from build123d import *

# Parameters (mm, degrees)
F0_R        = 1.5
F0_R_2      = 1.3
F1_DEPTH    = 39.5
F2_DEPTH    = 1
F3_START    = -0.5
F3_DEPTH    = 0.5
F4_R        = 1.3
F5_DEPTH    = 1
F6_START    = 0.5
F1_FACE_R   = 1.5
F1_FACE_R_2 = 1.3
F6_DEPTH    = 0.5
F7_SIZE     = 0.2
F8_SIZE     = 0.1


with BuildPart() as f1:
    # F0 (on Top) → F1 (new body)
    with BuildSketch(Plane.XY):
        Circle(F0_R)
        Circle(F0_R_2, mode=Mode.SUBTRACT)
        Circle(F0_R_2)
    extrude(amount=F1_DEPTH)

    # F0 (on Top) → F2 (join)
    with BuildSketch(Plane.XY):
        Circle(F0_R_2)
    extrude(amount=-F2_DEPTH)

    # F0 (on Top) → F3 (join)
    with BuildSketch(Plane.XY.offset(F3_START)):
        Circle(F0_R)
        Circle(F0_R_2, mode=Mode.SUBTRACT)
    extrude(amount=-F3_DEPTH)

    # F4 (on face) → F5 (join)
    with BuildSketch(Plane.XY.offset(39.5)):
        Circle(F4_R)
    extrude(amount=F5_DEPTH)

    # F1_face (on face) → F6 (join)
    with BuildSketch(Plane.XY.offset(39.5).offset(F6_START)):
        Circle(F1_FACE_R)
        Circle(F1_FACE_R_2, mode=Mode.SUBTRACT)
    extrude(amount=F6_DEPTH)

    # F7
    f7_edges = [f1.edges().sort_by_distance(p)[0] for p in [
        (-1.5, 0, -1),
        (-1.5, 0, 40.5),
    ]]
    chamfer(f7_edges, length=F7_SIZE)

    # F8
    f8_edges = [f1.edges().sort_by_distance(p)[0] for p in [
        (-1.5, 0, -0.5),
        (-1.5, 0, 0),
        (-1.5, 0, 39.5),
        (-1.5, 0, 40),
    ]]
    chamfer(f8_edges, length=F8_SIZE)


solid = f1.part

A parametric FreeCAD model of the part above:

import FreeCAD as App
import Part
import Sketcher

V = App.Vector


def edges_at(feature, points):
    """Names of the edges that pass closest to the given points."""
    edges = feature.Shape.Edges
    near = lambda p: min(range(len(edges)), key=lambda i: edges[i].distToShape(Part.Vertex(*p))[0])
    return sorted({f"Edge{near(p) + 1}" for p in points})

doc = App.newDocument("Part")
body = doc.addObject("PartDesign::Body", "Body")

# Sketch on XY plane
sketch1 = doc.addObject("Sketcher::SketchObject", "Sketch")
body.addObject(sketch1)
sketch1.AttachmentSupport = (doc.XY_Plane, [""])
sketch1.MapMode = "FlatFace"
sketch1.addGeometry(Part.Circle(V(0, 0, 0), V(0, 0, 1), 1.5), False)
sketch1.addConstraint([
    Sketcher.Constraint("Coincident", 0, 3, -1, 1),
    Sketcher.Constraint("Diameter", 0, 3.0),
])
pad1 = doc.addObject("PartDesign::Pad", "Pad")
body.addObject(pad1)
pad1.Profile = sketch1
pad1.Length = 39.5

# Sketch on XY plane
sketch2 = doc.addObject("Sketcher::SketchObject", "Sketch001")
body.addObject(sketch2)
sketch2.AttachmentSupport = (doc.XY_Plane, [""])
sketch2.MapMode = "FlatFace"
sketch2.addGeometry(Part.Circle(V(0, 0, 0), V(0, 0, 1), 1.3), False)
sketch2.addConstraint([
    Sketcher.Constraint("Coincident", 0, 3, -1, 1),
    Sketcher.Constraint("Diameter", 0, 2.6),
])
pad2 = doc.addObject("PartDesign::Pad", "Pad001")
body.addObject(pad2)
pad2.Profile = sketch2
pad2.Length = 1
pad2.Reversed = True

# Sketch on XY plane
sketch3 = doc.addObject("Sketcher::SketchObject", "Sketch002")
body.addObject(sketch3)
sketch3.AttachmentSupport = (doc.XY_Plane, [""])
sketch3.MapMode = "FlatFace"
sketch3.AttachmentOffset = App.Placement(V(0, 0, -0.5), App.Rotation())
sketch3.addGeometry([
    Part.Circle(V(0, 0, 0), V(0, 0, 1), 1.5),
    Part.Circle(V(0, 0, 0), V(0, 0, 1), 1.3),
], False)
sketch3.addConstraint([
    Sketcher.Constraint("Coincident", 0, 3, -1, 1),
    Sketcher.Constraint("Coincident", 1, 3, -1, 1),
    Sketcher.Constraint("Diameter", 0, 3.0),
    Sketcher.Constraint("Diameter", 1, 2.6),
])
pad3 = doc.addObject("PartDesign::Pad", "Pad002")
body.addObject(pad3)
pad3.Profile = sketch3
pad3.Length = 0.5
pad3.Reversed = True

# Sketch on XY plane
sketch4 = doc.addObject("Sketcher::SketchObject", "Sketch003")
body.addObject(sketch4)
sketch4.AttachmentSupport = (doc.XY_Plane, [""])
sketch4.MapMode = "FlatFace"
sketch4.AttachmentOffset = App.Placement(V(0, 0, 39.5), App.Rotation())
sketch4.addGeometry(Part.Circle(V(0, 0, 0), V(0, 0, 1), 1.3), False)
sketch4.addConstraint([
    Sketcher.Constraint("Coincident", 0, 3, -1, 1),
    Sketcher.Constraint("Diameter", 0, 2.6),
])
pad4 = doc.addObject("PartDesign::Pad", "Pad003")
body.addObject(pad4)
pad4.Profile = sketch4
pad4.Length = 1

# Sketch on XY plane
sketch5 = doc.addObject("Sketcher::SketchObject", "Sketch004")
body.addObject(sketch5)
sketch5.AttachmentSupport = (doc.XY_Plane, [""])
sketch5.MapMode = "FlatFace"
sketch5.AttachmentOffset = App.Placement(V(0, 0, 40), App.Rotation())
sketch5.addGeometry([
    Part.Circle(V(0, 0, 0), V(0, 0, 1), 1.5),
    Part.Circle(V(0, 0, 0), V(0, 0, 1), 1.3),
], False)
sketch5.addConstraint([
    Sketcher.Constraint("Coincident", 0, 3, -1, 1),
    Sketcher.Constraint("Coincident", 1, 3, -1, 1),
    Sketcher.Constraint("Diameter", 0, 3.0),
    Sketcher.Constraint("Diameter", 1, 2.6),
])
pad5 = doc.addObject("PartDesign::Pad", "Pad004")
body.addObject(pad5)
pad5.Profile = sketch5
pad5.Length = 0.5
doc.recompute()

chamfer = doc.addObject("PartDesign::Chamfer", "Chamfer")
body.addObject(chamfer)
chamfer.Base = (pad5, edges_at(pad5, [(-1.5, 0, -1), (-1.5, 0, 40.5)]))
chamfer.Size = 0.2
doc.recompute()

chamfer2 = doc.addObject("PartDesign::Chamfer", "Chamfer001")
body.addObject(chamfer2)
chamfer2.Base = (chamfer, edges_at(chamfer, [
    (-1.5, 0, -0.5),
    (-1.5, 0, 0),
    (-1.5, 0, 39.5),
    (-1.5, 0, 40),
]))
chamfer2.Size = 0.1

doc.recompute()
